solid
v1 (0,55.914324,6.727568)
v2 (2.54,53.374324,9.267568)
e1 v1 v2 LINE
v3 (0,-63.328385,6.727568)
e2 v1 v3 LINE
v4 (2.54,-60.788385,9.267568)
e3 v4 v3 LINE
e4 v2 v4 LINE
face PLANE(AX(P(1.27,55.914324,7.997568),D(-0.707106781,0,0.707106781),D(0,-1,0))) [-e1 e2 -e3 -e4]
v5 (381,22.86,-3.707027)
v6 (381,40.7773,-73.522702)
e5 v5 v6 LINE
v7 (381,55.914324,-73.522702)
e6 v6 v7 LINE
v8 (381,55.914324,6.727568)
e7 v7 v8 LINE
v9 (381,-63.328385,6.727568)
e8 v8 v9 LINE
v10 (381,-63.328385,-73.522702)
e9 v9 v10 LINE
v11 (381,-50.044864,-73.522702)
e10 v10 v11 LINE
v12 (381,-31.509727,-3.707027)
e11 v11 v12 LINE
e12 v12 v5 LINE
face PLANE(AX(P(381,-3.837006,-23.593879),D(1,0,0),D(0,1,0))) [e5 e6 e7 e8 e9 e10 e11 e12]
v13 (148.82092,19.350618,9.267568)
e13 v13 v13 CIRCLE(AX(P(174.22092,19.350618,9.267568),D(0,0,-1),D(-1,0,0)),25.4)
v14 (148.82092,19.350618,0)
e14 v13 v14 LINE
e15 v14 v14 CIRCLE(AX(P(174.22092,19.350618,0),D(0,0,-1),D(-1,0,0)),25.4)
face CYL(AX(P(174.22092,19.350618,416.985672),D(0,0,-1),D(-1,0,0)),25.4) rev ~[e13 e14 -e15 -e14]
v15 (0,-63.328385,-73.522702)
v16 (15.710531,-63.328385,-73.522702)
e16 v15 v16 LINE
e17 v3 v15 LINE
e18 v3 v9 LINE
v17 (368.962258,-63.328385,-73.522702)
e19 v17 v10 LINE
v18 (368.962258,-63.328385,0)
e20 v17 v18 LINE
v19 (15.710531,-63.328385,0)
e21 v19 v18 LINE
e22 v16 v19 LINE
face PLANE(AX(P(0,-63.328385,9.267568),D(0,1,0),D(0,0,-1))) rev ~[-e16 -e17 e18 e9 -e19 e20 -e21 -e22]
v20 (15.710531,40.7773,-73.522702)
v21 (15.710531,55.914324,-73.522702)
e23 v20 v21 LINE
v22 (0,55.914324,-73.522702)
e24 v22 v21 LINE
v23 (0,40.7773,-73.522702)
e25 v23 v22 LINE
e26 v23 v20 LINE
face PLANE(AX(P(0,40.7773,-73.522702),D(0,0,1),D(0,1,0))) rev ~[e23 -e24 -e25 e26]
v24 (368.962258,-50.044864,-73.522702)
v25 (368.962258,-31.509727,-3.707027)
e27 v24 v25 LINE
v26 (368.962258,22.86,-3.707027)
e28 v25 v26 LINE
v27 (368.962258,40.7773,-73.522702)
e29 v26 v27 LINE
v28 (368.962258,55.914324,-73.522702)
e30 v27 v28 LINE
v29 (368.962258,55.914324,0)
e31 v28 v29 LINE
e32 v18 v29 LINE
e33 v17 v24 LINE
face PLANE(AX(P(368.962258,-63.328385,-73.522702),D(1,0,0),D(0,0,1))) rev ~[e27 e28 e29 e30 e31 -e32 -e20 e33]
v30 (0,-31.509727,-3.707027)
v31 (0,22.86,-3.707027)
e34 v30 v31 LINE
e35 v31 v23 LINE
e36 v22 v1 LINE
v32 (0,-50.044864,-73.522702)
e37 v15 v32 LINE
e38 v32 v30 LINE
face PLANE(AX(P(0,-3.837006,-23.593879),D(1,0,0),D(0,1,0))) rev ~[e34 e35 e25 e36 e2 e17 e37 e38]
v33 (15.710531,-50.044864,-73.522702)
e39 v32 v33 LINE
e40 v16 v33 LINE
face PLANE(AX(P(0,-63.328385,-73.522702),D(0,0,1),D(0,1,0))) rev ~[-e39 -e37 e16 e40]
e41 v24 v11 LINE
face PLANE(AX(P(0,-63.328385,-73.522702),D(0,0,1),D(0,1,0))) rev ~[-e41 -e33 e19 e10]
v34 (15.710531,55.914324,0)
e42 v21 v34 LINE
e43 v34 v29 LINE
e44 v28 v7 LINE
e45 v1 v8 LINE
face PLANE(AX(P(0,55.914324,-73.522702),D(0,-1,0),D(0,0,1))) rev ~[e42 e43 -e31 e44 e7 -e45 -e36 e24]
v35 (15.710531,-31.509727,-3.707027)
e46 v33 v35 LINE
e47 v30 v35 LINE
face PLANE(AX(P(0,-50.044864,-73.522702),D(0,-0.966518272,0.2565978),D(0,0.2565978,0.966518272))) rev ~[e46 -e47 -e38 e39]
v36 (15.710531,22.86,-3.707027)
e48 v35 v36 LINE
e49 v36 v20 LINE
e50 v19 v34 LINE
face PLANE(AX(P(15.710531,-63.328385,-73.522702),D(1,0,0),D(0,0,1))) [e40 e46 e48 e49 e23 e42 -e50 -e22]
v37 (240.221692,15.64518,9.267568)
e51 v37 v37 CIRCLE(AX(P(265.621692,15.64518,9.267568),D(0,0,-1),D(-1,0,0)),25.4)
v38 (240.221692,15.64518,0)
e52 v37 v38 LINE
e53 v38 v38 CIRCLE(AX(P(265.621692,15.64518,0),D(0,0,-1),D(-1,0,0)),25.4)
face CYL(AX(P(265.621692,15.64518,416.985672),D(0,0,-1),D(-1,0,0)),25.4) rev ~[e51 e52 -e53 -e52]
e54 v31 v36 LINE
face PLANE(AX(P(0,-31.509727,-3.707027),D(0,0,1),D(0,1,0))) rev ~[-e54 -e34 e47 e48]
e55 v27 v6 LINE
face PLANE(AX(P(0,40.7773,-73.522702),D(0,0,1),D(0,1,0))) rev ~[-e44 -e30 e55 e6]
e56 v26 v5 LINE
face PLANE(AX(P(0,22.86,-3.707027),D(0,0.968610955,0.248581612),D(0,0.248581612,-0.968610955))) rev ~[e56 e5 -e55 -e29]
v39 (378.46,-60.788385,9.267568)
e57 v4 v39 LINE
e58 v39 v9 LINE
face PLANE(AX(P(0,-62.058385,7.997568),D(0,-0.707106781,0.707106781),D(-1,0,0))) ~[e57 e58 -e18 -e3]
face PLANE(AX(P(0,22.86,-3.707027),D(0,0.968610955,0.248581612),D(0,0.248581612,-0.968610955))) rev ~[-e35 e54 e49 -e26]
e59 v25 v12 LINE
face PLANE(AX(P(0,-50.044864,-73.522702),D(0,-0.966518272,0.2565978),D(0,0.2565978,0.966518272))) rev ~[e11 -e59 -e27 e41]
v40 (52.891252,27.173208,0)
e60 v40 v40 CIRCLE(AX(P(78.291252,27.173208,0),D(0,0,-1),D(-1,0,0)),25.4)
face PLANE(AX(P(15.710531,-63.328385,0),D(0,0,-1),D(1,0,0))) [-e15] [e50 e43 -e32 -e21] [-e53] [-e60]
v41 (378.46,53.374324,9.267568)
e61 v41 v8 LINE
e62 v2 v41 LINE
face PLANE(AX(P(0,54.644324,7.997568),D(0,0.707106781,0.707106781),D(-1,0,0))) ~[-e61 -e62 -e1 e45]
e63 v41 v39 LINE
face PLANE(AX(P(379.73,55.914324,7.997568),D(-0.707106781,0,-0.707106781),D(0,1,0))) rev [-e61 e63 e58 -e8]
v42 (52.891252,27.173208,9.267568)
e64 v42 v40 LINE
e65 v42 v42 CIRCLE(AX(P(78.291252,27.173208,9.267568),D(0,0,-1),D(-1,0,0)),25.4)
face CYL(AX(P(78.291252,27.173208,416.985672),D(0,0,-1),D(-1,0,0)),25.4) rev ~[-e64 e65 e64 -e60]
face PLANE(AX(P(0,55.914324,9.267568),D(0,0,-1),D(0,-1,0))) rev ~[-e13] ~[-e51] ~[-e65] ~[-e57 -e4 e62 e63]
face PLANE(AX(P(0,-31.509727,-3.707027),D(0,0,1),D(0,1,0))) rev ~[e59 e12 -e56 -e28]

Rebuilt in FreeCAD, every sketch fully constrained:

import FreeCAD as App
import Part
import Sketcher
Q = App.Units.Quantity


def edges_at(feature, points):
    """Names of the edges that pass closest to the given points."""
    edges = feature.Shape.Edges
    near = lambda p: min(range(len(edges)), key=lambda i: edges[i].distToShape(Part.Vertex(*p))[0])
    return sorted({f"Edge{near(p) + 1}" for p in points})


def add_polygon(sketch, points):
    """Adds a closed chain of lines whose ends are joined by coincident constraints."""
    first, n = sketch.GeometryCount, len(points)
    for a, b in zip(points, points[1:] + points[:1]):
        sketch.addGeometry(Part.LineSegment(App.Vector(*a, 0), App.Vector(*b, 0)), False)
    for i in range(n):
        sketch.addConstraint(Sketcher.Constraint("Coincident", first + i, 2, first + (i + 1) % n, 1))

doc = App.newDocument("Part")
body = doc.addObject("PartDesign::Body", "Body")

sketch1 = doc.addObject("Sketcher::SketchObject", "Sketch")
body.addObject(sketch1)
sketch1.AttachmentSupport = (doc.YZ_Plane, [""])
sketch1.MapMode = "FlatFace"
add_polygon(sketch1, [(23, -4), (41, -74), (56, -74), (56, 9), (-63, 9), (-63, -74), (-50, -74), (-32, -4)])
sketch1.addConstraint(Sketcher.Constraint("Horizontal", 1))
sketch1.addConstraint(Sketcher.Constraint("Vertical", 2))
sketch1.addConstraint(Sketcher.Constraint("Horizontal", 3))
sketch1.addConstraint(Sketcher.Constraint("Vertical", 4))
sketch1.addConstraint(Sketcher.Constraint("Horizontal", 5))
sketch1.addConstraint(Sketcher.Constraint("Horizontal", 7))
sketch1.addConstraint(Sketcher.Constraint("Horizontal", 1, 2, 4, 2))
sketch1.addConstraint(Sketcher.Constraint("DistanceX", -1, 1, 7, 2, Q("0.9 in")))
sketch1.addConstraint(Sketcher.Constraint("Distance", 6, 72.234201))
sketch1.addConstraint(Sketcher.Constraint("DistanceX", 3, 2, 3, 1, 119.242709))
sketch1.addConstraint(Sketcher.Constraint("DistanceX", 5, 1, 5, 2, 13.283521))
sketch1.addConstraint(Sketcher.Constraint("DistanceY", 2, 1, 2, 2, 82.79027))
sketch1.addConstraint(Sketcher.Constraint("DistanceX", -1, 1, 0, 2, 40.7773))
sketch1.addConstraint(Sketcher.Constraint("DistanceY", 0, 2, -1, 1, 73.522702))
sketch1.addConstraint(Sketcher.Constraint("Distance", 0, 72.078139))
sketch1.addConstraint(Sketcher.Constraint("DistanceX", 1, 1, 1, 2, 15.137024))
pad1 = doc.addObject("PartDesign::Pad", "Pad")
body.addObject(pad1)
pad1.Profile = sketch1
pad1.Length = Q("15 in")

sketch2 = doc.addObject("Sketcher::SketchObject", "Sketch001")
body.addObject(sketch2)
sketch2.AttachmentSupport = (doc.XZ_Plane, [""])
sketch2.MapMode = "FlatFace"
sketch2.AttachmentOffset = App.Placement(App.Vector(0, 0, 63.328385), App.Rotation())
add_polygon(sketch2, [(16, 0), (16, -74), (369, -74), (369, 0)])
sketch2.addConstraint(Sketcher.Constraint("Vertical", 0))
sketch2.addConstraint(Sketcher.Constraint("Horizontal", 1))
sketch2.addConstraint(Sketcher.Constraint("Vertical", 2))
sketch2.addConstraint(Sketcher.Constraint("Horizontal", 3))
sketch2.addConstraint(Sketcher.Constraint("PointOnObject", 2, 2, -1))
sketch2.addConstraint(Sketcher.Constraint("DistanceY", 0, 2, 0, 1, 73.522702))
sketch2.addConstraint(Sketcher.Constraint("DistanceX", 1, 1, 1, 2, 353.251727))
sketch2.addConstraint(Sketcher.Constraint("DistanceX", -1, 1, 0, 2, 15.710531))
pocket1 = doc.addObject("PartDesign::Pocket", "Pocket")
body.addObject(pocket1)
pocket1.Profile = sketch2
pocket1.Type = "ThroughAll"
doc.recompute()

chamfer = doc.addObject("PartDesign::Chamfer", "Chamfer")
body.addObject(chamfer)
chamfer.Base = (pocket1, edges_at(pocket1, [
    (381, -3.707, 9.268),
    (190.5, -63.328, 9.268),
    (190.5, 55.914, 9.268),
    (0, -3.707, 9.268),
]))
chamfer.Size = Q("0.1 in")

sketch3 = doc.addObject("Sketcher::SketchObject", "Sketch002")
body.addObject(sketch3)
sketch3.AttachmentSupport = (doc.XY_Plane, [""])
sketch3.MapMode = "FlatFace"
sketch3.AttachmentOffset = App.Placement(App.Vector(0, 0, 9.267568), App.Rotation())
sketch3.addGeometry(Part.Circle(App.Vector(78, 27, 0), App.Vector(0, 0, 1), 25), False)
sketch3.addGeometry(Part.Circle(App.Vector(174, 19, 0), App.Vector(0, 0, 1), 25), False)
sketch3.addGeometry(Part.Circle(App.Vector(266, 16, 0), App.Vector(0, 0, 1), 25), False)
sketch3.addConstraint(Sketcher.Constraint("Equal", 0, 1))
sketch3.addConstraint(Sketcher.Constraint("Equal", 1, 2))
sketch3.addConstraint(Sketcher.Constraint("Diameter", 0, Q("2 in")))
sketch3.addConstraint(Sketcher.Constraint("DistanceX", -1, 1, 0, 3, 78.291252))
sketch3.addConstraint(Sketcher.Constraint("DistanceX", -1, 1, 1, 3, 174.22092))
sketch3.addConstraint(Sketcher.Constraint("DistanceY", -1, 1, 1, 3, 19.350618))
sketch3.addConstraint(Sketcher.Constraint("DistanceX", -1, 1, 2, 3, 265.621692))
sketch3.addConstraint(Sketcher.Constraint("DistanceY", -1, 1, 2, 3, 15.64518))
sketch3.addConstraint(Sketcher.Constraint("DistanceY", 1, 3, 0, 3, 7.82259))
doc.recompute()
hole = doc.addObject("PartDesign::Hole", "Hole")
body.addObject(hole)
hole.Profile = sketch3
hole.ThreadType = "None"
hole.Diameter = Q("2 in")
hole.DepthType = "ThroughAll"

doc.recompute()
